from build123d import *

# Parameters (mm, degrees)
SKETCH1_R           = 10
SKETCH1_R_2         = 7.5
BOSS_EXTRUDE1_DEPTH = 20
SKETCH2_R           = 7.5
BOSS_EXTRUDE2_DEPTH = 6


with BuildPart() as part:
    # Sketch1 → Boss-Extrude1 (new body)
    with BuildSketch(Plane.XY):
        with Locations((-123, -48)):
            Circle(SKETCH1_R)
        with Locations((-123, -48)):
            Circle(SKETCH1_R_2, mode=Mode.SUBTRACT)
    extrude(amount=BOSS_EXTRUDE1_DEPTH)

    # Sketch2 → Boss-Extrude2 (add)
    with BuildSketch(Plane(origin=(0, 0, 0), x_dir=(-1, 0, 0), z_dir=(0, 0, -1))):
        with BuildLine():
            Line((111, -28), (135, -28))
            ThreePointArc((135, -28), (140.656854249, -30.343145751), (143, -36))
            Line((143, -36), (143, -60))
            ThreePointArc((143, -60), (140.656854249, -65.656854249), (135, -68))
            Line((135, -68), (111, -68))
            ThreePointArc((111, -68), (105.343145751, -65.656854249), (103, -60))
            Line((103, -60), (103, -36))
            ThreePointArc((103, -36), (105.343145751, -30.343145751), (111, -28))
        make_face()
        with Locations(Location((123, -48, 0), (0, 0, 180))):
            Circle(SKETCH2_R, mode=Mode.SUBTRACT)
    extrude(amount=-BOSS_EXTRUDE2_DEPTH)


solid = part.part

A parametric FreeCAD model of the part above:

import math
import FreeCAD as App
import Part
import Sketcher

V = App.Vector

doc = App.newDocument("Part")
body = doc.addObject("PartDesign::Body", "Body")

# Sketch on XY plane
sketch1 = body.newObject("Sketcher::SketchObject", "Sketch")
sketch1.AttachmentSupport = (doc.getObject("XY_Plane"), [""])
sketch1.MapMode = "FlatFace"
sketch1.addGeometry([
    Part.Circle(V(-123, -48, 0), V(0, 0, 1), 10),
    Part.Circle(V(-123, -48, 0), V(0, 0, 1), 7.5),
], False)
sketch1.addConstraint([
    Sketcher.Constraint("Coincident", 1, 3, 0, 3),
    Sketcher.Constraint("Diameter", 0, 20.0),
    Sketcher.Constraint("Diameter", 1, 15.0),
    Sketcher.Constraint("DistanceX", 0, 3, -1, 1, 123.0),
    Sketcher.Constraint("DistanceY", 0, 3, -1, 1, 48.0),
])
pad1 = body.newObject("PartDesign::Pad", "Pad")
pad1.Profile = sketch1
pad1.Length = 20

# Sketch on XY plane
sketch2 = body.newObject("Sketcher::SketchObject", "Sketch001")
sketch2.AttachmentSupport = (doc.getObject("XY_Plane"), [""])
sketch2.MapMode = "FlatFace"
sketch2.addGeometry([
    Part.LineSegment(V(-135, -28, 0), V(-111, -28, 0)),  # 0
    Part.ArcOfCircle(Part.Circle(V(-111, -36, 0), V(0, 0, 1), 8), math.radians(0), math.radians(90)),  # 1
    Part.LineSegment(V(-103, -36, 0), V(-103, -60, 0)),  # 2
    Part.ArcOfCircle(Part.Circle(V(-111, -60, 0), V(0, 0, 1), 8), math.radians(-90), math.radians(0)),  # 3
    Part.LineSegment(V(-111, -68, 0), V(-135, -68, 0)),  # 4
    Part.ArcOfCircle(Part.Circle(V(-135, -60, 0), V(0, 0, 1), 8), math.radians(-180), math.radians(-90)),  # 5
    Part.LineSegment(V(-143, -60, 0), V(-143, -36, 0)),  # 6
    Part.ArcOfCircle(Part.Circle(V(-135, -36, 0), V(0, 0, 1), 8), math.radians(90), math.radians(180)),  # 7
    Part.Circle(V(-123, -48, 0), V(0, 0, 1), 7.5),  # 8
], False)
sketch2.addConstraint([
    Sketcher.Constraint("Tangent", 0, 2, 1, 2),
    Sketcher.Constraint("Tangent", 1, 1, 2, 1),
    Sketcher.Constraint("Tangent", 2, 2, 3, 2),
    Sketcher.Constraint("Tangent", 3, 1, 4, 1),
    Sketcher.Constraint("Tangent", 4, 2, 5, 2),
    Sketcher.Constraint("Tangent", 5, 1, 6, 1),
    Sketcher.Constraint("Tangent", 6, 2, 7, 2),
    Sketcher.Constraint("Tangent", 7, 1, 0, 1),
    Sketcher.Constraint("Horizontal", 0),
    Sketcher.Constraint("Vertical", 2),
    Sketcher.Constraint("Horizontal", 4),
    Sketcher.Constraint("Vertical", 6),
    Sketcher.Constraint("Equal", 1, 3),
    Sketcher.Constraint("Equal", 3, 5),
    Sketcher.Constraint("Equal", 5, 7),
    Sketcher.Constraint("Equal", 4, 2),
    Sketcher.Constraint("Diameter", 8, 15.0),
    Sketcher.Constraint("Radius", 1, 8.0),
    Sketcher.Constraint("DistanceX", 0, 1, 0, 2, 24.0),
    Sketcher.Constraint("DistanceX", 1, 3, -1, 1, 111.0),
    Sketcher.Constraint("DistanceY", 1, 3, -1, 1, 36.0),
    Sketcher.Constraint("DistanceX", 8, 3, -1, 1, 123.0),
    Sketcher.Constraint("DistanceY", 8, 3, -1, 1, 48.0),
])
pad2 = body.newObject("PartDesign::Pad", "Pad001")
pad2.Profile = sketch2
pad2.Length = 6

doc.recompute()
